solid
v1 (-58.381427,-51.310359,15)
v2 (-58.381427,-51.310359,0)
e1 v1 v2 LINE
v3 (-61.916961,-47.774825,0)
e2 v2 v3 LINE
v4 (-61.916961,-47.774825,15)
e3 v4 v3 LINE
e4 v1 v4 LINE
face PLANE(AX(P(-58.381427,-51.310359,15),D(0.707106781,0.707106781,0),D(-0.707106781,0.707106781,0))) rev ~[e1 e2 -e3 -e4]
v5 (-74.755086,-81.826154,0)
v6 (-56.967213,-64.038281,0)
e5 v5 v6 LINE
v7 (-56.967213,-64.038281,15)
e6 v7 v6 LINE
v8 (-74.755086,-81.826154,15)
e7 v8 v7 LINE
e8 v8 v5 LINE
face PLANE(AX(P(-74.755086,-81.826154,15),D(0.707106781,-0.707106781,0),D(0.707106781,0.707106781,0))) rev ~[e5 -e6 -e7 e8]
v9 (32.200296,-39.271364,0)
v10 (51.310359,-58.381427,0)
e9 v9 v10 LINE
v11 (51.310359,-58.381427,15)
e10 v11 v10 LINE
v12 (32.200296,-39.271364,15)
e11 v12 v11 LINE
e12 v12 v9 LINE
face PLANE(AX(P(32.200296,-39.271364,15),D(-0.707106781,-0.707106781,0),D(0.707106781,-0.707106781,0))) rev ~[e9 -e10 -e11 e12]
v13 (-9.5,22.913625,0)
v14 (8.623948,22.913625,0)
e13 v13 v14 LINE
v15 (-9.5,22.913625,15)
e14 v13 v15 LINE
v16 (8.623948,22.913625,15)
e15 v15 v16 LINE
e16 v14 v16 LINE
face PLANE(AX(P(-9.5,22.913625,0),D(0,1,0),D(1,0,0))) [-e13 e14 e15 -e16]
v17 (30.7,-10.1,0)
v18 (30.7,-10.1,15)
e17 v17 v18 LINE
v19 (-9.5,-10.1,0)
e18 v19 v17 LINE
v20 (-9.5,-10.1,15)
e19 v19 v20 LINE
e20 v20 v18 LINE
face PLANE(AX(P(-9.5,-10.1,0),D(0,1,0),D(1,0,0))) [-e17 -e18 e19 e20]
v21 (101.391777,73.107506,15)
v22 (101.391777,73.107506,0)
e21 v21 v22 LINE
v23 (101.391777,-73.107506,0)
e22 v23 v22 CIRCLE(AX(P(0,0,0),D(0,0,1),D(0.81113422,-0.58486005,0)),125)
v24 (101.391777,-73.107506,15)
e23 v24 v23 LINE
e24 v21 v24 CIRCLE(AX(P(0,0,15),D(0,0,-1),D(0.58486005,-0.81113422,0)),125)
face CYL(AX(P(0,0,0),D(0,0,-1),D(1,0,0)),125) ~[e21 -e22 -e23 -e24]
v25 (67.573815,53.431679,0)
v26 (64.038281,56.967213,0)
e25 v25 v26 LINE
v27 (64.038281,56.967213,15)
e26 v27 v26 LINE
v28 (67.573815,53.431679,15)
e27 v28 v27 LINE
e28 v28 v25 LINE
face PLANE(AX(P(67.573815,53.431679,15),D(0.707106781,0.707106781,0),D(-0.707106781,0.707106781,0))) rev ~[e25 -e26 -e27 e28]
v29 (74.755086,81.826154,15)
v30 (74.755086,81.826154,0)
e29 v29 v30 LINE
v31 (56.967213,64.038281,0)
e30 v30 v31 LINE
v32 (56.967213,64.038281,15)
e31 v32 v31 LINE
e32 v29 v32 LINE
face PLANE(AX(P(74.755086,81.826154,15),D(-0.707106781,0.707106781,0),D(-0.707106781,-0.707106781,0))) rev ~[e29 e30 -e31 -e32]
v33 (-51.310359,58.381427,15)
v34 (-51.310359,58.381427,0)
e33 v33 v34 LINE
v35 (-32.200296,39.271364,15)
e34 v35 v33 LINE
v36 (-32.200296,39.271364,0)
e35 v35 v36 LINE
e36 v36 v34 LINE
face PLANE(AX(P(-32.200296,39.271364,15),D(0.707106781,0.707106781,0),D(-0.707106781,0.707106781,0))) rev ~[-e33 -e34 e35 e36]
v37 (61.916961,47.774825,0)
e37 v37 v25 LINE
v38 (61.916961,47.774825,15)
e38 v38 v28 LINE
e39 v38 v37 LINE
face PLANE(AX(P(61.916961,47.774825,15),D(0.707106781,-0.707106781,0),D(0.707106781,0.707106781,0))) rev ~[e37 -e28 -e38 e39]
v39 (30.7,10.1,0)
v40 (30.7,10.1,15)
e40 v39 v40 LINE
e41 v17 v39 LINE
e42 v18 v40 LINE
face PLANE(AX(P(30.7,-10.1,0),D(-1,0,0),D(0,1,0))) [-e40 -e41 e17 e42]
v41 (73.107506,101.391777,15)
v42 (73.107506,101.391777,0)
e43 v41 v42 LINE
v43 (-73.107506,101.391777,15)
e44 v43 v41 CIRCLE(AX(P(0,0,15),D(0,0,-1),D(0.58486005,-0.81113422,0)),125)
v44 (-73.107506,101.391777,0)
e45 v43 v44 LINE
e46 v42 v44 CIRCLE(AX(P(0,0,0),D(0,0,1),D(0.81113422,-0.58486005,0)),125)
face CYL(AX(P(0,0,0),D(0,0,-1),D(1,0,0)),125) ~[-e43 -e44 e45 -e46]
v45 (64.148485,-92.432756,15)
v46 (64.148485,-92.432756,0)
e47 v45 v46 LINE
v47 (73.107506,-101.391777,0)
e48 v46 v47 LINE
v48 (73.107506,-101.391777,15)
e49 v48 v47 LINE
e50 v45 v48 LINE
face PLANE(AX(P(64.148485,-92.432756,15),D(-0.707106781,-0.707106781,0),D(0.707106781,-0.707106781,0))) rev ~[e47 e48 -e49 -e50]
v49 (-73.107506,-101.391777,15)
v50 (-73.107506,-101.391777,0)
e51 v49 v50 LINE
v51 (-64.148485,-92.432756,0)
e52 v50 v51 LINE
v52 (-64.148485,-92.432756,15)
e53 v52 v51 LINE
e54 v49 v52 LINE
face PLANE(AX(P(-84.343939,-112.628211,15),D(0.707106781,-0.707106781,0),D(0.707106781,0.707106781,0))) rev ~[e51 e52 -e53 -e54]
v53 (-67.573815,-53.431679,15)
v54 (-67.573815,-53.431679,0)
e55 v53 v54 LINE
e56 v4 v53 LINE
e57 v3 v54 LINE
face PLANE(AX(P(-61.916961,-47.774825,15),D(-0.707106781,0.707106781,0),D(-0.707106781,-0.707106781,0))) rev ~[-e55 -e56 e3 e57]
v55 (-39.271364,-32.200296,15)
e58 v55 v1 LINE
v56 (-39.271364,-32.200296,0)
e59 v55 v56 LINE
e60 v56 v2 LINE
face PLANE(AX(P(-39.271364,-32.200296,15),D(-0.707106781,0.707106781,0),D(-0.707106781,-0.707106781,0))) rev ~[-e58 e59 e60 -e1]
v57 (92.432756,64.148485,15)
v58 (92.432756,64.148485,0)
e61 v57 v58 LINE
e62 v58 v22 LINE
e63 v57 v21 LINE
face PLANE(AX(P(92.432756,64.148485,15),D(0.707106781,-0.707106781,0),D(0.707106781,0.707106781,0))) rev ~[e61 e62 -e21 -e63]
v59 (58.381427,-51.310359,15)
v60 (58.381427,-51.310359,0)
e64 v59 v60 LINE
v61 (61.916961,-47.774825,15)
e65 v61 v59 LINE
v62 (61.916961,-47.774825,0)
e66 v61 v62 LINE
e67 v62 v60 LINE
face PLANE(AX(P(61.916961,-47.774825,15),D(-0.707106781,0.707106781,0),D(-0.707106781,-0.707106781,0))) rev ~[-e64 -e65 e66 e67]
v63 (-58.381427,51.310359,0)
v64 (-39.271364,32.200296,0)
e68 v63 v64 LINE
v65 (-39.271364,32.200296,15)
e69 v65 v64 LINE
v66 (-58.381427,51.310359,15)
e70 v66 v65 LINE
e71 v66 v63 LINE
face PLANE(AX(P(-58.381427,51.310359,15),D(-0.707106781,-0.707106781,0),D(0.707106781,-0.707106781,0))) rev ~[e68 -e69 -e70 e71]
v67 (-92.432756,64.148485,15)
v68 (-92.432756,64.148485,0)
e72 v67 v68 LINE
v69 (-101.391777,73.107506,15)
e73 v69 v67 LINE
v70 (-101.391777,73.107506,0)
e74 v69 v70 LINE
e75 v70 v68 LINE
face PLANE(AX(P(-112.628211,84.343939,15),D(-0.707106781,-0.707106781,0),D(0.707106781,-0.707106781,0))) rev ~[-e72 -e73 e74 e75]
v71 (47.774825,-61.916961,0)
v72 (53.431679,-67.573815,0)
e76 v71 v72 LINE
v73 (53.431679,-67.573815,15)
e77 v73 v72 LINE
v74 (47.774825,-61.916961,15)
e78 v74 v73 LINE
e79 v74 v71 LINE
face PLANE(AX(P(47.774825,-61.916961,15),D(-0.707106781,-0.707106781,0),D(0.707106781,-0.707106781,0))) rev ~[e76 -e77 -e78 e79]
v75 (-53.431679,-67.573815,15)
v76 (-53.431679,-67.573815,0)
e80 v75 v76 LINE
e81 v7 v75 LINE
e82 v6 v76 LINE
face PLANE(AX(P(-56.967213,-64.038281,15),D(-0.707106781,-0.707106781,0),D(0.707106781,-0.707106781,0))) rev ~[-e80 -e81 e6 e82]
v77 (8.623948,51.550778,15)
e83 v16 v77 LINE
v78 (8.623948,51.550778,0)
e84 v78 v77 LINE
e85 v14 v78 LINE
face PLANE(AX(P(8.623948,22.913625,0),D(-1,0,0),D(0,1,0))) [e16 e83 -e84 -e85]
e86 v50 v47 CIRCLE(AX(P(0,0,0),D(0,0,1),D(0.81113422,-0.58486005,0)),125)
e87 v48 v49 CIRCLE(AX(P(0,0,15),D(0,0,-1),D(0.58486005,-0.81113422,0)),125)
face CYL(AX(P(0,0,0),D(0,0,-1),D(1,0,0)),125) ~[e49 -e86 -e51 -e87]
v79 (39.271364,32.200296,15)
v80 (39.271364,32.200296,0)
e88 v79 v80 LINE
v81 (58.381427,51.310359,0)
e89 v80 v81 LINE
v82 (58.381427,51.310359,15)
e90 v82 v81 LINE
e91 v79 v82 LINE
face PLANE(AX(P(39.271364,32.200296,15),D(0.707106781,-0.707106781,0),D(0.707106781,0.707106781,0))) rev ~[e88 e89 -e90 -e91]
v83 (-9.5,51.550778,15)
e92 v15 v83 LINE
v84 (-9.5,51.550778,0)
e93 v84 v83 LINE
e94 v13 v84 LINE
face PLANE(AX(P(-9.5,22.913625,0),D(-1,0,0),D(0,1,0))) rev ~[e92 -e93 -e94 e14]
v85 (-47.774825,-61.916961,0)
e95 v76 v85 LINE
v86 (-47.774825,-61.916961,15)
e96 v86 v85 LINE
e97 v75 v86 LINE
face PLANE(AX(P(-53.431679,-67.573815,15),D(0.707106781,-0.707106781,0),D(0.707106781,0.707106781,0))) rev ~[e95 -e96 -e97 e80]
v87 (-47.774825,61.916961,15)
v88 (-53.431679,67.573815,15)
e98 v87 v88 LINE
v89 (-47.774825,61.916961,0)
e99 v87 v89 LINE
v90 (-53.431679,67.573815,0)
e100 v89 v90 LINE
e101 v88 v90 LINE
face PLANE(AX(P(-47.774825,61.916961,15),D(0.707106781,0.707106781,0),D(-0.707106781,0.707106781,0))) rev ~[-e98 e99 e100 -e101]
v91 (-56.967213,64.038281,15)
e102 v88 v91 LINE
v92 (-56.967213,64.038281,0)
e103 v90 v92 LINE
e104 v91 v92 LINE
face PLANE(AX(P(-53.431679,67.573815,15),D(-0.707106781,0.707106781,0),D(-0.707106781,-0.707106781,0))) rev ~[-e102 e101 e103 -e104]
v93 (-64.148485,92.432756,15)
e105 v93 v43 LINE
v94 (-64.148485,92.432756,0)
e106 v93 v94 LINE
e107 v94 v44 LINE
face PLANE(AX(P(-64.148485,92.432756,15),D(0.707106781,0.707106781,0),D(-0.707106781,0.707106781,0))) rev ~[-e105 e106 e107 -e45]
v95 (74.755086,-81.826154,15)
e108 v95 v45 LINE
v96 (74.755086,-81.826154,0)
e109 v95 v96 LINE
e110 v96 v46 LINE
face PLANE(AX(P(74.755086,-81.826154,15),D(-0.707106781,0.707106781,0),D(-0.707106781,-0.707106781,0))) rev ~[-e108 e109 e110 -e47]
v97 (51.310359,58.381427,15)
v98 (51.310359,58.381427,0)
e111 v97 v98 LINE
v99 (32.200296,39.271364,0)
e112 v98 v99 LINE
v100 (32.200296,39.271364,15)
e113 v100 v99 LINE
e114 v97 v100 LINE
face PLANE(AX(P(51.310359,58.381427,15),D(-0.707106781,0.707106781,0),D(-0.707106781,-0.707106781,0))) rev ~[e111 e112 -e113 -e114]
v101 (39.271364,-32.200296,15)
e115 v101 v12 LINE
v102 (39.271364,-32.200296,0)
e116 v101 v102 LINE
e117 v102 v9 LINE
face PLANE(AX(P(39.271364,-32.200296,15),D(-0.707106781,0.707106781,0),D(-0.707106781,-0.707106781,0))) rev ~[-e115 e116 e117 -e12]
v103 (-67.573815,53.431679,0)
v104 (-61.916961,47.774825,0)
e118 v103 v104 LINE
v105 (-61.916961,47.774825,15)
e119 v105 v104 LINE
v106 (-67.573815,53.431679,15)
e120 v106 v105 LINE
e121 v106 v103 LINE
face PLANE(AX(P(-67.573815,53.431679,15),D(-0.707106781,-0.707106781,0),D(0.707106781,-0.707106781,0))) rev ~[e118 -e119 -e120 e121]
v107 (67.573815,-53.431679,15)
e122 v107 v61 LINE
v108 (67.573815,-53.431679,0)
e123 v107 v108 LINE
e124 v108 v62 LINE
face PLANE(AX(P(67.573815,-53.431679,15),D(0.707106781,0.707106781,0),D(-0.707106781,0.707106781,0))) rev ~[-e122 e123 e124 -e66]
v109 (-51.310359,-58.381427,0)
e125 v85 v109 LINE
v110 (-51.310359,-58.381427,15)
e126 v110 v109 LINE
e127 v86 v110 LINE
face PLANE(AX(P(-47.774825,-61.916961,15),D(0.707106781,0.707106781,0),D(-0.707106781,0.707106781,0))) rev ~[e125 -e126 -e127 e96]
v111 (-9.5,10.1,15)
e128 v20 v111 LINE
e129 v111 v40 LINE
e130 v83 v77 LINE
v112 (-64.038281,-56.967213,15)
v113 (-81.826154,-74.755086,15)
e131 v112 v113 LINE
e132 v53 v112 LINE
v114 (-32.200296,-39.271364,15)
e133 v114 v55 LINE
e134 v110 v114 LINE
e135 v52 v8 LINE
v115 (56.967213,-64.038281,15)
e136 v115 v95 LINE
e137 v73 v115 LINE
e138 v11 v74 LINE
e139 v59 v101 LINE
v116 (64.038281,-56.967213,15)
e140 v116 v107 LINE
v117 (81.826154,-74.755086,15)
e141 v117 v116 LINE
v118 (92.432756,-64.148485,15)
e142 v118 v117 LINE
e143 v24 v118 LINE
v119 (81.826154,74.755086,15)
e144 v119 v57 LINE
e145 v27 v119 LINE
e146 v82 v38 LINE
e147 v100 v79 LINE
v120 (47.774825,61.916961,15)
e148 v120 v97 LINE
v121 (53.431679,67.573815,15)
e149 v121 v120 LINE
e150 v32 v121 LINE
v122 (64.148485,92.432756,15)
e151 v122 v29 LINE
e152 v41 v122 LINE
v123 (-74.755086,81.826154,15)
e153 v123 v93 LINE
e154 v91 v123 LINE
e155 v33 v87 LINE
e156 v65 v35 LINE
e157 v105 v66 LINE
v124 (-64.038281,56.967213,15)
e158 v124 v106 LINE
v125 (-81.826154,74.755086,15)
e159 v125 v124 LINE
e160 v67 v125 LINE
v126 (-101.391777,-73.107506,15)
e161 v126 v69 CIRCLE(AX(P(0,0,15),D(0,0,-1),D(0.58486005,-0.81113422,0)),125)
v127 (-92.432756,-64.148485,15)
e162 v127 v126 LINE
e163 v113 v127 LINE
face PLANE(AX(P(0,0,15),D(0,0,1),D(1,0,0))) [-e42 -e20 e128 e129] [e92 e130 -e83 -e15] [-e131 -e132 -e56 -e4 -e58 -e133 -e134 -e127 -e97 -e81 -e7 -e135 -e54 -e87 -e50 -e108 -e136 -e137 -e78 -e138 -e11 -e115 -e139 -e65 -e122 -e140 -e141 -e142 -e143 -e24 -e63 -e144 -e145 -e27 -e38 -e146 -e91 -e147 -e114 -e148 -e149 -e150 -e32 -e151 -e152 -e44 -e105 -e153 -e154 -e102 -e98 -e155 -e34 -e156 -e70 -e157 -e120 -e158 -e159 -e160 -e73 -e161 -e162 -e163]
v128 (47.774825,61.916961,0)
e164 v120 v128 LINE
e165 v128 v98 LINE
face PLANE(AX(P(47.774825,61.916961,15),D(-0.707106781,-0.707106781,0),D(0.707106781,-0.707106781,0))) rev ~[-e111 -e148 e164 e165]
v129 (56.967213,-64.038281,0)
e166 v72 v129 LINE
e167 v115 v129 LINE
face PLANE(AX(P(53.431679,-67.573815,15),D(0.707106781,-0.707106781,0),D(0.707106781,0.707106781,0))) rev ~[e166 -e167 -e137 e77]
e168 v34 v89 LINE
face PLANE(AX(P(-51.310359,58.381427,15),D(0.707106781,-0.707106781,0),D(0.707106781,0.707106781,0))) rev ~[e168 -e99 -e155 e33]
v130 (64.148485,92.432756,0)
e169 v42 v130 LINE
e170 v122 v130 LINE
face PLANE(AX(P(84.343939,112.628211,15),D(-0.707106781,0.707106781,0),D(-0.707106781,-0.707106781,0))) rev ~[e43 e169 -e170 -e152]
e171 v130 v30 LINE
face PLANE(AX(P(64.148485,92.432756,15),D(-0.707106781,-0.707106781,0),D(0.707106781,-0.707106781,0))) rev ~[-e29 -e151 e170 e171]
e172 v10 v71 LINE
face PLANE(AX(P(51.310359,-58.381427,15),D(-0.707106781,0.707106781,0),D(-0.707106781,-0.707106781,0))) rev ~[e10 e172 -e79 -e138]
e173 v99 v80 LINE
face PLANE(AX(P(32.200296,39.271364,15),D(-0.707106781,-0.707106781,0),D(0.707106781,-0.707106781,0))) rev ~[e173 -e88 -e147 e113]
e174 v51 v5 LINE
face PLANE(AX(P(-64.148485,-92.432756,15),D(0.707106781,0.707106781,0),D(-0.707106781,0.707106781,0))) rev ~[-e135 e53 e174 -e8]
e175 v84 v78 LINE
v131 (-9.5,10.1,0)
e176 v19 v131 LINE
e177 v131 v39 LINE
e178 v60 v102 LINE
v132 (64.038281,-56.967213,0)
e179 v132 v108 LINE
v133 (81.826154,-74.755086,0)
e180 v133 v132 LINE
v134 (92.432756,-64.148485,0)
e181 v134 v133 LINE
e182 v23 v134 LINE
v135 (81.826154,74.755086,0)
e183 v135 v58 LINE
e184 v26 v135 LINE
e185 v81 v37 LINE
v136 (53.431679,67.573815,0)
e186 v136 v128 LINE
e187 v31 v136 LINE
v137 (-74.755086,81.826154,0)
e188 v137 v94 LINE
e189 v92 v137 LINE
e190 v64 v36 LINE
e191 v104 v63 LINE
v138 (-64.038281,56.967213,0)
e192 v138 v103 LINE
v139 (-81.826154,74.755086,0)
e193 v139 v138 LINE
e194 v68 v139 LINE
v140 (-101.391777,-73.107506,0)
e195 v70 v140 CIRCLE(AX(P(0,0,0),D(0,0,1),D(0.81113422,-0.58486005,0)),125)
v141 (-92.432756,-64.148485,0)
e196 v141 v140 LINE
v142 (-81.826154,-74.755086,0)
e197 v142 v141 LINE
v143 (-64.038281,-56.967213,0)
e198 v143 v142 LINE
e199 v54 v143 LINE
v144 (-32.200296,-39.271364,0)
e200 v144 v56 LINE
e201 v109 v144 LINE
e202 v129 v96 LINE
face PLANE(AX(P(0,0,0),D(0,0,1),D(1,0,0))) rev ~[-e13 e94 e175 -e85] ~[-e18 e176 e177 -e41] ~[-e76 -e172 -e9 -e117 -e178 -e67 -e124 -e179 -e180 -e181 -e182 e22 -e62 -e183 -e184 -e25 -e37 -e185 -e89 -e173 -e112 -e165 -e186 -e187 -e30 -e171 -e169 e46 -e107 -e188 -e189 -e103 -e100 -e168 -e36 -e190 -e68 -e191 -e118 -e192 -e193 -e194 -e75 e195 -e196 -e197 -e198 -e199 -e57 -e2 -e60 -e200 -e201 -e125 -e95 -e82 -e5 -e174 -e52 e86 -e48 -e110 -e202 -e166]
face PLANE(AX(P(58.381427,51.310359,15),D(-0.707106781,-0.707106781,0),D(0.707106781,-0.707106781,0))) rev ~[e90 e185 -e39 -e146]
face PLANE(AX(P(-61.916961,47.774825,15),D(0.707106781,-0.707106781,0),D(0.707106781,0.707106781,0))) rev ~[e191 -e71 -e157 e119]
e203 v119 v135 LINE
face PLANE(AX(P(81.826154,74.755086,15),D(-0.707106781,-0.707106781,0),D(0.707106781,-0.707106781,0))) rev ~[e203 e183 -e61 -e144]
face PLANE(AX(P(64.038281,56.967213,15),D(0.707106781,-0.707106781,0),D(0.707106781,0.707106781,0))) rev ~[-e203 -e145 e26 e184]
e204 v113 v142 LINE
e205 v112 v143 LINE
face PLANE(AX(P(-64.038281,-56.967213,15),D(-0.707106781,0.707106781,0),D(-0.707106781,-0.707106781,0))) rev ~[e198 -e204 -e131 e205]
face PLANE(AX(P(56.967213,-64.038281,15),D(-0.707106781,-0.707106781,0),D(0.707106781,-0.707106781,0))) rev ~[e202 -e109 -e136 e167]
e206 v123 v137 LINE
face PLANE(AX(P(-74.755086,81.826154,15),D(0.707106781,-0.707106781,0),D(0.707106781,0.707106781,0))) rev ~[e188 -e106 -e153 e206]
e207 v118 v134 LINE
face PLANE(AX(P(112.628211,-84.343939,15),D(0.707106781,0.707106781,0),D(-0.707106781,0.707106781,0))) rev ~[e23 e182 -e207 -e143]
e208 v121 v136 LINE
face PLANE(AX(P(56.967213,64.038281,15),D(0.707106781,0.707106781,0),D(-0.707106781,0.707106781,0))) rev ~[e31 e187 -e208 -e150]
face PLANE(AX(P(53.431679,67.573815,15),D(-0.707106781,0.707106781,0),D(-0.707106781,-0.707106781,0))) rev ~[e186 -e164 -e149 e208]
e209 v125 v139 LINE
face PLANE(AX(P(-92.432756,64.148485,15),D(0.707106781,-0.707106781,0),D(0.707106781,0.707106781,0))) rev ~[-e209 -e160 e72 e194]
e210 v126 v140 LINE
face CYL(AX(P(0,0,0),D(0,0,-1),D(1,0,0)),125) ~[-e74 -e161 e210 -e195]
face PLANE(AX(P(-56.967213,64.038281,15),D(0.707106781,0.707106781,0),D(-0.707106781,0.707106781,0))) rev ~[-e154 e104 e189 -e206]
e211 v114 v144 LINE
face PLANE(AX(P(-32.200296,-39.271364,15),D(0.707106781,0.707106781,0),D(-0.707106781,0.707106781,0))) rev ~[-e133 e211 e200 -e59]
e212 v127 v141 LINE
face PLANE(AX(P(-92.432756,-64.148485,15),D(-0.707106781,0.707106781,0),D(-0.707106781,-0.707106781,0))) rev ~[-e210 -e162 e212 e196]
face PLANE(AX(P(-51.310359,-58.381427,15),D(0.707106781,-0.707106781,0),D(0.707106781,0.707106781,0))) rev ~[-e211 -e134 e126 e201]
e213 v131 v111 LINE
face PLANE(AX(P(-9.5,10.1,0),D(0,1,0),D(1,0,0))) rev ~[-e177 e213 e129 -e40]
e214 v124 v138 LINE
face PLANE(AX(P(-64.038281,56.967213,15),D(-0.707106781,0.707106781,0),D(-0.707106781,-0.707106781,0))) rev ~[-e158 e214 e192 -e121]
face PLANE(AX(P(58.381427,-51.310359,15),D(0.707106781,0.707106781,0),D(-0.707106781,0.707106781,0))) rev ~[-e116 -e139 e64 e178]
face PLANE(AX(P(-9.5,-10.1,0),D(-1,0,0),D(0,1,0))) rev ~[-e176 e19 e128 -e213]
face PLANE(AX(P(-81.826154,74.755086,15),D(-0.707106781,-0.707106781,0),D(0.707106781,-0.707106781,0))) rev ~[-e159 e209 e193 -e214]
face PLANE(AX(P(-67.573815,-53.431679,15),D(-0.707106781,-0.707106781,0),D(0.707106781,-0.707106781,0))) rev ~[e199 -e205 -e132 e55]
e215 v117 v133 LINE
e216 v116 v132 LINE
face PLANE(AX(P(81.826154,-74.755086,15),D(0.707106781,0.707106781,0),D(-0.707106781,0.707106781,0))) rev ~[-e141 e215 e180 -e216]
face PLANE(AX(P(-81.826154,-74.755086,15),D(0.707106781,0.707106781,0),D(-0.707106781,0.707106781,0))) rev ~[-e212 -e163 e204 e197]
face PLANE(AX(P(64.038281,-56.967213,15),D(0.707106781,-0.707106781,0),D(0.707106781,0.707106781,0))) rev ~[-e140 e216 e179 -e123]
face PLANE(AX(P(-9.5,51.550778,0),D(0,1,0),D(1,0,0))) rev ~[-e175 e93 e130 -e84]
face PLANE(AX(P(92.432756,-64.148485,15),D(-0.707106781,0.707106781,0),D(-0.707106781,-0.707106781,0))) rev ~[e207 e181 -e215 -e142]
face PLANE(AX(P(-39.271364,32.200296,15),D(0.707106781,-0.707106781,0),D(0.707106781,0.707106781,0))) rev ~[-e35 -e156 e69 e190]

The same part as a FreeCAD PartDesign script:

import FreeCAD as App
import Part
import Sketcher
from FreeCAD import Vector
Q = App.Units.Quantity


def add_polygon(sketch, points):
    """Adds a closed chain of lines whose ends are joined by coincident constraints."""
    first, n = sketch.GeometryCount, len(points)
    for a, b in zip(points, points[1:] + points[:1]):
        sketch.addGeometry(Part.LineSegment(App.Vector(*a, 0), App.Vector(*b, 0)), False)
    for i in range(n):
        sketch.addConstraint(Sketcher.Constraint("Coincident", first + i, 2, first + (i + 1) % n, 1))

doc = App.newDocument("Part")
body = doc.addObject("PartDesign::Body", "Body")

# Sketch on XY plane
sketch1 = body.newObject("Sketcher::SketchObject", "Sketch")
sketch1.AttachmentSupport = (doc.getObject("XY_Plane"), [""])
sketch1.MapMode = "FlatFace"
sketch1.addGeometry(Part.Circle(Vector(0, 0, 0), Vector(0, 0, 1), 125), False)  # 0
add_polygon(sketch1, [(31, -10), (-10, -10), (-10, 10), (31, 10)])  # lines 1-4
add_polygon(sketch1, [(9, 23), (-9, 23), (-9, 52), (9, 52)])  # lines 5-8
sketch1.addConstraint([
    Sketcher.Constraint("Horizontal", 1),
    Sketcher.Constraint("Vertical", 2),
    Sketcher.Constraint("Horizontal", 3),
    Sketcher.Constraint("Vertical", 4),
    Sketcher.Constraint("Horizontal", 5),
    Sketcher.Constraint("Vertical", 6),
    Sketcher.Constraint("Horizontal", 7),
    Sketcher.Constraint("Vertical", 8),
    Sketcher.Constraint("Coincident", 0, 3, -1, 1),
    Sketcher.Constraint("Vertical", 2, 2, 5, 2),
    Sketcher.Constraint("Diameter", 0, 250.0),
    Sketcher.Constraint("DistanceX", 1, 2, 1, 1, 40.2),
    Sketcher.Constraint("DistanceY", 2, 1, 2, 2, 20.2),
    Sketcher.Constraint("DistanceX", 1, 2, -1, 1, 9.5),
    Sketcher.Constraint("DistanceY", 1, 2, -1, 1, 10.1),
    Sketcher.Constraint("DistanceX", 5, 2, 5, 1, 18.123948),
    Sketcher.Constraint("DistanceY", 6, 1, 6, 2, 28.637154),
    Sketcher.Constraint("DistanceY", -1, 1, 6, 2, 51.550778),
])
pad1 = body.newObject("PartDesign::Pad", "Pad")
pad1.Profile = sketch1
pad1.Length = 15

# Sketch on XY plane
sketch2 = body.newObject("Sketcher::SketchObject", "Sketch001")
sketch2.AttachmentSupport = (doc.getObject("XY_Plane"), [""])
sketch2.MapMode = "FlatFace"
sketch2.AttachmentOffset = App.Placement(Vector(0, 0, 15), App.Rotation())
add_polygon(sketch2, [(64, -92), (84, -113), (113, -84), (92, -64), (82, -75), (64, -57), (68, -53), (62, -48), (58, -51), (39, -32), (32, -39), (51, -58), (48, -62), (53, -68), (57, -64), (75, -82)])  # lines 0-15
sketch2.addConstraint([
    Sketcher.Constraint("Perpendicular", 0, 1),
    Sketcher.Constraint("Perpendicular", 1, 2),
    Sketcher.Constraint("Perpendicular", 2, 3),
    Sketcher.Constraint("Perpendicular", 3, 4),
    Sketcher.Constraint("Perpendicular", 4, 5),
    Sketcher.Constraint("Perpendicular", 5, 6),
    Sketcher.Constraint("Perpendicular", 6, 7),
    Sketcher.Constraint("Perpendicular", 7, 8),
    Sketcher.Constraint("Perpendicular", 8, 9),
    Sketcher.Constraint("Perpendicular", 9, 10),
    Sketcher.Constraint("Perpendicular", 10, 11),
    Sketcher.Constraint("Perpendicular", 11, 12),
    Sketcher.Constraint("Perpendicular", 12, 13),
    Sketcher.Constraint("Perpendicular", 13, 14),
    Sketcher.Constraint("Perpendicular", 14, 15),
    Sketcher.Constraint("Equal", 0, 2),
    Sketcher.Constraint("Equal", 5, 7),
    Sketcher.Constraint("Equal", 8, 10),
    Sketcher.Constraint("Equal", 7, 11),
    Sketcher.Constraint("Equal", 6, 12),
    Sketcher.Constraint("Equal", 11, 13),
    Sketcher.Constraint("Equal", 3, 15),
    Sketcher.Constraint("Angle", 0, Q("-45 deg")),
    Sketcher.Constraint("Distance", 1, 40.0),
    Sketcher.Constraint("Distance", 3, 15.0),
    Sketcher.Constraint("Distance", 5, 5.0),
    Sketcher.Constraint("Distance", 6, 8.0),
    Sketcher.Constraint("Distance", 4, 25.155851),
    Sketcher.Constraint("Distance", 8, 27.025711),
    Sketcher.Constraint("DistanceX", -1, 1, 0, 2, 84.343939),
    Sketcher.Constraint("DistanceY", 0, 2, -1, 1, 112.628211),
    Sketcher.Constraint("DistanceX", -1, 1, 4, 2, 64.038281),
])
pocket1 = body.newObject("PartDesign::Pocket", "Pocket")
pocket1.Profile = sketch2
pocket1.Length = 15
doc.recompute()

polarpattern = body.newObject("PartDesign::PolarPattern", "PolarPattern")
polarpattern.Originals = [pocket1]
polarpattern.Axis = (doc.getObject("Z_Axis"), [""])
polarpattern.Angle = 360
polarpattern.Occurrences = 4
body.Tip = polarpattern

doc.recompute()
